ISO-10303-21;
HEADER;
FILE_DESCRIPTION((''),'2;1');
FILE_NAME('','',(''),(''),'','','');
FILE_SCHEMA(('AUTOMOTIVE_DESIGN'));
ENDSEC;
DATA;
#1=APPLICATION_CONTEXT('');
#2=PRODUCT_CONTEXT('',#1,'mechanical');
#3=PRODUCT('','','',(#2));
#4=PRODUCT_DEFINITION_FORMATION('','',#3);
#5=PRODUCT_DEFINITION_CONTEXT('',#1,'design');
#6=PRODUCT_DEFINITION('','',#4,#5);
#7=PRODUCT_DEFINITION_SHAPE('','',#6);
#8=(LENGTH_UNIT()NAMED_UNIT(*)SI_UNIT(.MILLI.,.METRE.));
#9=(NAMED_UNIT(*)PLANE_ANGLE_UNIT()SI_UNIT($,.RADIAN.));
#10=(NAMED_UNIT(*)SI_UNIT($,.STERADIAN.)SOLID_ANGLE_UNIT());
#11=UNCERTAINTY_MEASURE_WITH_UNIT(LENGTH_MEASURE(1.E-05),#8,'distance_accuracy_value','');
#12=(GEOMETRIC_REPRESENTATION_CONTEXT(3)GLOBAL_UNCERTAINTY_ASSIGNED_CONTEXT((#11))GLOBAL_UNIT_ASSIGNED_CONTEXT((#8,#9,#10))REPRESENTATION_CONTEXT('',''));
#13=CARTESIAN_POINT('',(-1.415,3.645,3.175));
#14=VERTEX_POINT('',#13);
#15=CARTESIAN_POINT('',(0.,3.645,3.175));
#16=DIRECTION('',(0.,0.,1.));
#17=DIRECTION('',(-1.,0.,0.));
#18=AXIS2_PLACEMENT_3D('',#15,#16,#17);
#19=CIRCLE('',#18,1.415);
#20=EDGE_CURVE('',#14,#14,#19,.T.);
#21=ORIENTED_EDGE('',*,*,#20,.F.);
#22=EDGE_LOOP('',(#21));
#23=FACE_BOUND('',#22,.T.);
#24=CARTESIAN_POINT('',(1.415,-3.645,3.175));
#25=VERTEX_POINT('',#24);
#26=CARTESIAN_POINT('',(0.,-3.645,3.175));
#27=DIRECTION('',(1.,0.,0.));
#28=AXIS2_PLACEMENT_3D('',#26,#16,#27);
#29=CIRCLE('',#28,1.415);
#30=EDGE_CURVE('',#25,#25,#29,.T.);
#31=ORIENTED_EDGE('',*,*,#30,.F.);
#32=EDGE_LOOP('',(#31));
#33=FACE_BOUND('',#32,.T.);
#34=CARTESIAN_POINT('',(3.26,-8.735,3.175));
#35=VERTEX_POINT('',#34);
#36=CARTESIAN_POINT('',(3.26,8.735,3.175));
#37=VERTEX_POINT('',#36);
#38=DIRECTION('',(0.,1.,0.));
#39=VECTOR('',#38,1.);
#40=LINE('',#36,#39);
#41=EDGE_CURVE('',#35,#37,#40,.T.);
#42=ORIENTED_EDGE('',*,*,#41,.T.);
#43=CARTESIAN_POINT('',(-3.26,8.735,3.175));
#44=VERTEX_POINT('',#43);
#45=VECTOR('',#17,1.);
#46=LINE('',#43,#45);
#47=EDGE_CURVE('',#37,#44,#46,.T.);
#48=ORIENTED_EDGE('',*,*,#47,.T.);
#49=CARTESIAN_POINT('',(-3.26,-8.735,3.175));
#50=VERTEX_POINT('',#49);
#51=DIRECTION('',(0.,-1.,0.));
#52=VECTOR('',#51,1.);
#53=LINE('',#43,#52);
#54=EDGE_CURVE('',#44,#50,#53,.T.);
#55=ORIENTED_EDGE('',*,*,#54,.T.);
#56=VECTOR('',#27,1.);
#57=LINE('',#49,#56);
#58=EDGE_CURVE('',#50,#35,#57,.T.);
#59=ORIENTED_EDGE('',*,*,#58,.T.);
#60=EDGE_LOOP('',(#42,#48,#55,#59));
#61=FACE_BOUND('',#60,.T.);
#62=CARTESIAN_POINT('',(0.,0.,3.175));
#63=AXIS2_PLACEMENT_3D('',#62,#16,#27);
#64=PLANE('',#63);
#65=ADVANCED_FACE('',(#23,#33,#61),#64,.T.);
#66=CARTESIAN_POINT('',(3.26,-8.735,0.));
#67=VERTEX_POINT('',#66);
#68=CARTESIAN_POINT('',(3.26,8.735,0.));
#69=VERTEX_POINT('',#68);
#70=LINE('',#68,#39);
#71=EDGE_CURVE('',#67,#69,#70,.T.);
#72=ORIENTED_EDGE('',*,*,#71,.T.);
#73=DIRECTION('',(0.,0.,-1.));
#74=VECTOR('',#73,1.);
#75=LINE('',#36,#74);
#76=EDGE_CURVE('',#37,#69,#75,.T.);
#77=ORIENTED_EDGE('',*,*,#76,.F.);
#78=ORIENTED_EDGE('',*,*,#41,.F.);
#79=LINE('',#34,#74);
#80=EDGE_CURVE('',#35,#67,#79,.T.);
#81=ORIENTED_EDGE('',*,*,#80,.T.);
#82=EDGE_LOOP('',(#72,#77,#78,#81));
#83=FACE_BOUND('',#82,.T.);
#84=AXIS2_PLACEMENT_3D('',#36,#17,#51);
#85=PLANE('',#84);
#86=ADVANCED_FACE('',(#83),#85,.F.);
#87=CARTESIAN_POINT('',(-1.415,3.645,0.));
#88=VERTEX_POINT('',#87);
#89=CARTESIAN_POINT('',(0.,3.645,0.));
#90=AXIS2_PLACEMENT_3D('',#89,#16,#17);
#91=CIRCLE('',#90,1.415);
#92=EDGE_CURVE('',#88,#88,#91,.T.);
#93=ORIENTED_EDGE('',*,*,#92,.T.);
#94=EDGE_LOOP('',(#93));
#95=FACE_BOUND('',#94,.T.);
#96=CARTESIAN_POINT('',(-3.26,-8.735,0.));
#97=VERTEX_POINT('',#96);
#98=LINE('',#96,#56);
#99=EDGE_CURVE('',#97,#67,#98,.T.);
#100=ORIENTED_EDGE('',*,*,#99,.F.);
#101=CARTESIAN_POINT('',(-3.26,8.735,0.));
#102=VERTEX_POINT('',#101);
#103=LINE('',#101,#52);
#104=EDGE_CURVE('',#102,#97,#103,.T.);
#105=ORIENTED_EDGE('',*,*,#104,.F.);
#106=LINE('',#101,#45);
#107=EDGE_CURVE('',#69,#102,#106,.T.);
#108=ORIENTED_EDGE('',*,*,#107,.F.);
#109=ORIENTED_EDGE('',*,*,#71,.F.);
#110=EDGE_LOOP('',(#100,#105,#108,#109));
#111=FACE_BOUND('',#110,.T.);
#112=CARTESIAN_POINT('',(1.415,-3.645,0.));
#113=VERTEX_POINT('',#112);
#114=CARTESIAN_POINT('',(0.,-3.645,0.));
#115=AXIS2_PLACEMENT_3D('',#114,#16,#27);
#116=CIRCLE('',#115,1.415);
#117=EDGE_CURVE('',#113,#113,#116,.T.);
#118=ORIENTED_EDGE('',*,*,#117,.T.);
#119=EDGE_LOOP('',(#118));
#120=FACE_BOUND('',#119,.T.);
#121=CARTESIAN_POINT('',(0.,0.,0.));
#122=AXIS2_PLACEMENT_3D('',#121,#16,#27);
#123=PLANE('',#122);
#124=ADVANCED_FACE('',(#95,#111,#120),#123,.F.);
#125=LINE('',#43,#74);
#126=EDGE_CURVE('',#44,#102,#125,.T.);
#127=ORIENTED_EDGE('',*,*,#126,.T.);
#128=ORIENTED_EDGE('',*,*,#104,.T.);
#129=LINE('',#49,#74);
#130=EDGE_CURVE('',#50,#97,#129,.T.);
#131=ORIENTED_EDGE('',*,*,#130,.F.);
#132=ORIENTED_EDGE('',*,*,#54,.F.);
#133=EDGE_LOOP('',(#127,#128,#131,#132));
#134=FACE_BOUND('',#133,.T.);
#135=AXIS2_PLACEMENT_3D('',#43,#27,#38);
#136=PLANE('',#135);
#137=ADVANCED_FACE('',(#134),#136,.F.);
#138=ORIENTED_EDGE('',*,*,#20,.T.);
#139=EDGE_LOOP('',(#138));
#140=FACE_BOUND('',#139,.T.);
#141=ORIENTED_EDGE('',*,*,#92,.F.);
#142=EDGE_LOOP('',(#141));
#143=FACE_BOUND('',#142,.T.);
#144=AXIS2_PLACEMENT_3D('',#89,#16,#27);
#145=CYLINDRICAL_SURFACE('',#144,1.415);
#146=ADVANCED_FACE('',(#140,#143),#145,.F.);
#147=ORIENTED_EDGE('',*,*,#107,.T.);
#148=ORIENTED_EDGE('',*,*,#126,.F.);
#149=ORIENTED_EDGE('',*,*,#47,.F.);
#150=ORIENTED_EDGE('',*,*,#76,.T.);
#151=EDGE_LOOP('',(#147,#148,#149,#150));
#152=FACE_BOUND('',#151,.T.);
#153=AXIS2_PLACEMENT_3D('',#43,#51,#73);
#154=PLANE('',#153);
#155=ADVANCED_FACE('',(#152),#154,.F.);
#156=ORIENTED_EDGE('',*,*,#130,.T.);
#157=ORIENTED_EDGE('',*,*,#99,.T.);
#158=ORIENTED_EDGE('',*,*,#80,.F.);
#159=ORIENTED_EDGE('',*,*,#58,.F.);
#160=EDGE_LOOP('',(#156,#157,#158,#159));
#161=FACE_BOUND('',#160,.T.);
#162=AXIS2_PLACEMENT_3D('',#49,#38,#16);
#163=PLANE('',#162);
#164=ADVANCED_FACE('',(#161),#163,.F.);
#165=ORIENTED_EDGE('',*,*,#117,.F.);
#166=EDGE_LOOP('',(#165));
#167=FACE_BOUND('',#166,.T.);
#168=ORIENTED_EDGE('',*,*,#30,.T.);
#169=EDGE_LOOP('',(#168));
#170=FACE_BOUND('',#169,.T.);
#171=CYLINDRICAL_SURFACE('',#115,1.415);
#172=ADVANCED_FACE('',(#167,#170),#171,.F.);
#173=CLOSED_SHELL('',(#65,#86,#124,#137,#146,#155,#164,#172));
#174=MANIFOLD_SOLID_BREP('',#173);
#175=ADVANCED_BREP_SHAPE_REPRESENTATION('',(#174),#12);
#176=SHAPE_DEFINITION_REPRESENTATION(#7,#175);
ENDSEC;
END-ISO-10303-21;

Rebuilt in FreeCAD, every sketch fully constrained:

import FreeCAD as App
import Part
import Sketcher
from FreeCAD import Vector

doc = App.newDocument("Part")
params = doc.addObject("Spreadsheet::Sheet", "Params")
for row, (alias, value) in enumerate([
    ("pad1_length", "0.125 in"),
], start=1):
    params.set(f"A{row}", alias)
    params.set(f"B{row}", "=" + value)
    params.setAlias(f"B{row}", alias)

body = doc.addObject("PartDesign::Body", "Body")

# Sketch on XY plane
sketch1 = body.newObject("Sketcher::SketchObject", "Sketch")
sketch1.AttachmentSupport = (doc.getObject("XY_Plane"), [""])
sketch1.MapMode = "FlatFace"
sketch1.addGeometry([
    Part.LineSegment(Vector(-3, 9, 0), Vector(-3, -9, 0)),
    Part.LineSegment(Vector(-3, -9, 0), Vector(3, -9, 0)),
    Part.LineSegment(Vector(3, -9, 0), Vector(3, 9, 0)),
    Part.LineSegment(Vector(3, 9, 0), Vector(-3, 9, 0)),
], False)
sketch1.addConstraint([
    Sketcher.Constraint("Coincident", 0, 2, 1, 1),
    Sketcher.Constraint("Coincident", 1, 2, 2, 1),
    Sketcher.Constraint("Coincident", 2, 2, 3, 1),
    Sketcher.Constraint("Coincident", 3, 2, 0, 1),
    Sketcher.Constraint("Vertical", 0),
    Sketcher.Constraint("Horizontal", 1),
    Sketcher.Constraint("Vertical", 2),
    Sketcher.Constraint("Horizontal", 3),
    Sketcher.Constraint("Symmetric", 0, 2, 2, 2, -1, 1),
    Sketcher.Constraint("DistanceX", 1, 1, 1, 2, 6.52),
    Sketcher.Constraint("DistanceY", 0, 2, 0, 1, 17.47),
])
pad1 = body.newObject("PartDesign::Pad", "Pad")
pad1.Profile = sketch1
pad1.setExpression("Length", "Params.pad1_length")

# Sketch on XY plane
sketch2 = body.newObject("Sketcher::SketchObject", "Sketch001")
sketch2.AttachmentSupport = (doc.getObject("XY_Plane"), [""])
sketch2.MapMode = "FlatFace"
sketch2.AttachmentOffset = App.Placement(Vector(0, 0, 0.125 * 25.4), App.Rotation())
sketch2.addGeometry([
    Part.Circle(Vector(0, -3.6, 0), Vector(0, 0, 1), 1.4),
    Part.Circle(Vector(0, 3.6, 0), Vector(0, 0, 1), 1.4),
], False)
sketch2.addConstraint([
    Sketcher.Constraint("Equal", 0, 1),
    Sketcher.Constraint("Symmetric", 0, 3, 1, 3, -1, 1),
    Sketcher.Constraint("PointOnObject", 0, 3, -2),
    Sketcher.Constraint("Diameter", 0, 2.83),
    Sketcher.Constraint("DistanceY", 0, 3, -1, 1, 3.645),
])
pocket1 = body.newObject("PartDesign::Pocket", "Pocket")
pocket1.Profile = sketch2
pocket1.Type = "ThroughAll"

doc.recompute()
